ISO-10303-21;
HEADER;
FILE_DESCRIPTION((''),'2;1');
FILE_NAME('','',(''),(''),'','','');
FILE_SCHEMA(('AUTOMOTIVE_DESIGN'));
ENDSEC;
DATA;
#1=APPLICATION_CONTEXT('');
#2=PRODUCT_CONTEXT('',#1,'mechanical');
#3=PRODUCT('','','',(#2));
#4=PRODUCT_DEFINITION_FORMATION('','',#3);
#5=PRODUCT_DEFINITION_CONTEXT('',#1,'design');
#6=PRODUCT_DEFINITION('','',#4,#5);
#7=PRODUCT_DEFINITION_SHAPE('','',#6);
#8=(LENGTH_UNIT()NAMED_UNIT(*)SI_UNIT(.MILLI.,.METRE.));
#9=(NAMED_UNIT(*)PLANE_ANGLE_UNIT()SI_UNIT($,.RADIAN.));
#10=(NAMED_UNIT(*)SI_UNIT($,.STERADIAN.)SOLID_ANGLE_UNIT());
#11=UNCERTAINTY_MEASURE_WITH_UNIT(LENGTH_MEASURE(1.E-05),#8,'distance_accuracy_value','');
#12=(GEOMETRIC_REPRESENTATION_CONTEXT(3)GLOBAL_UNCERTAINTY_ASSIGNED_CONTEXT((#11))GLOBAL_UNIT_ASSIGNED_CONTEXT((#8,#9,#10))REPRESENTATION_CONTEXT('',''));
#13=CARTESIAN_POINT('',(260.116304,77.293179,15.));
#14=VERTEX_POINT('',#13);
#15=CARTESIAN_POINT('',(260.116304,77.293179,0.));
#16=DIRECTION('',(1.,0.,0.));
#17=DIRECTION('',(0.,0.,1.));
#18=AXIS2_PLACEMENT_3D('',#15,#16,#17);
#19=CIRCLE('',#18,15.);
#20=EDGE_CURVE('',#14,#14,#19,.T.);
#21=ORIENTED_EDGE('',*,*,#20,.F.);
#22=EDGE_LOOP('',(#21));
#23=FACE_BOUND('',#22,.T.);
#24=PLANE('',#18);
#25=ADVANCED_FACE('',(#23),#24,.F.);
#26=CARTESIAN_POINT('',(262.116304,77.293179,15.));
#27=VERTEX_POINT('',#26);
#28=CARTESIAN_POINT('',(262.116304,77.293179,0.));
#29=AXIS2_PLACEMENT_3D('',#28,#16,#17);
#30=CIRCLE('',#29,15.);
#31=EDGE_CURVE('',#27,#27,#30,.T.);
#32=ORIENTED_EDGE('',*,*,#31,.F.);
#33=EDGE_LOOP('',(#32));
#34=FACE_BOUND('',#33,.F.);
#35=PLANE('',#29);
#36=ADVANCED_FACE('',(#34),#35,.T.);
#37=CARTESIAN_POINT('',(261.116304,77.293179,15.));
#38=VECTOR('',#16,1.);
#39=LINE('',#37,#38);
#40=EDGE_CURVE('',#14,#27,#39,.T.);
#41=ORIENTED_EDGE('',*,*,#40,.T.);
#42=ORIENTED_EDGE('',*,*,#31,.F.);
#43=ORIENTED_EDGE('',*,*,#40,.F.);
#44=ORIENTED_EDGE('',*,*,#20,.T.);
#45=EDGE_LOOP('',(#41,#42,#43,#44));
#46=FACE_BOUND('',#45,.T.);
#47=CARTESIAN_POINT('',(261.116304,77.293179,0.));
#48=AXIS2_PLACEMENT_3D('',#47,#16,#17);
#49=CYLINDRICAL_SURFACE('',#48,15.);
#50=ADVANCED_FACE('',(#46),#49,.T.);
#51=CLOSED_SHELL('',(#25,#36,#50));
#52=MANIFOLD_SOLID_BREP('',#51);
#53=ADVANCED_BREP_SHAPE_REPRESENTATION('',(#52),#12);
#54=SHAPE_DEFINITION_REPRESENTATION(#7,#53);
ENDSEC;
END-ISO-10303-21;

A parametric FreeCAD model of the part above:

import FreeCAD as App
import Part
import Sketcher
Q = App.Units.Quantity


def add_polygon(sketch, points):
    """Adds a closed chain of lines whose ends are joined by coincident constraints."""
    first, n = sketch.GeometryCount, len(points)
    for a, b in zip(points, points[1:] + points[:1]):
        sketch.addGeometry(Part.LineSegment(App.Vector(*a, 0), App.Vector(*b, 0)), False)
    for i in range(n):
        sketch.addConstraint(Sketcher.Constraint("Coincident", first + i, 2, first + (i + 1) % n, 1))

doc = App.newDocument("Part")
body = doc.addObject("PartDesign::Body", "Body")

# Sketch on XY plane
sketch1 = body.newObject("Sketcher::SketchObject", "Sketch")
sketch1.AttachmentSupport = (doc.getObject("XY_Plane"), [""])
sketch1.MapMode = "FlatFace"
add_polygon(sketch1, [(260.1, 92.3), (260.1, 77.3), (262.1, 77.3), (262.1, 92.3)])  # lines 0-3
sketch1.addGeometry(Part.LineSegment(App.Vector(260.1, 77.3, 0), App.Vector(262.1, 77.3, 0)), True)  # axis
sketch1.addConstraint([
    Sketcher.Constraint("Vertical", 0),
    Sketcher.Constraint("Horizontal", 1),
    Sketcher.Constraint("Vertical", 2),
    Sketcher.Constraint("Horizontal", 3),
    Sketcher.Constraint("Horizontal", 4),
    Sketcher.Constraint("Coincident", 4, 1, 0, 2),
    Sketcher.Constraint("Vertical", 2, 2, 4, 2),
    Sketcher.Constraint("DistanceX", 1, 1, 1, 2, Q("2 mm")),
    Sketcher.Constraint("DistanceY", 0, 2, 0, 1, Q("15 mm")),
    Sketcher.Constraint("DistanceY", -1, 1, 0, 2, Q("77.293179 mm")),
    Sketcher.Constraint("DistanceX", -1, 1, 0, 2, Q("260.116304 mm")),
])
revolution = body.newObject("PartDesign::Revolution", "Revolution")
revolution.Profile = sketch1
revolution.ReferenceAxis = (sketch1, ["Axis0"])
revolution.Angle = 360

doc.recompute()
